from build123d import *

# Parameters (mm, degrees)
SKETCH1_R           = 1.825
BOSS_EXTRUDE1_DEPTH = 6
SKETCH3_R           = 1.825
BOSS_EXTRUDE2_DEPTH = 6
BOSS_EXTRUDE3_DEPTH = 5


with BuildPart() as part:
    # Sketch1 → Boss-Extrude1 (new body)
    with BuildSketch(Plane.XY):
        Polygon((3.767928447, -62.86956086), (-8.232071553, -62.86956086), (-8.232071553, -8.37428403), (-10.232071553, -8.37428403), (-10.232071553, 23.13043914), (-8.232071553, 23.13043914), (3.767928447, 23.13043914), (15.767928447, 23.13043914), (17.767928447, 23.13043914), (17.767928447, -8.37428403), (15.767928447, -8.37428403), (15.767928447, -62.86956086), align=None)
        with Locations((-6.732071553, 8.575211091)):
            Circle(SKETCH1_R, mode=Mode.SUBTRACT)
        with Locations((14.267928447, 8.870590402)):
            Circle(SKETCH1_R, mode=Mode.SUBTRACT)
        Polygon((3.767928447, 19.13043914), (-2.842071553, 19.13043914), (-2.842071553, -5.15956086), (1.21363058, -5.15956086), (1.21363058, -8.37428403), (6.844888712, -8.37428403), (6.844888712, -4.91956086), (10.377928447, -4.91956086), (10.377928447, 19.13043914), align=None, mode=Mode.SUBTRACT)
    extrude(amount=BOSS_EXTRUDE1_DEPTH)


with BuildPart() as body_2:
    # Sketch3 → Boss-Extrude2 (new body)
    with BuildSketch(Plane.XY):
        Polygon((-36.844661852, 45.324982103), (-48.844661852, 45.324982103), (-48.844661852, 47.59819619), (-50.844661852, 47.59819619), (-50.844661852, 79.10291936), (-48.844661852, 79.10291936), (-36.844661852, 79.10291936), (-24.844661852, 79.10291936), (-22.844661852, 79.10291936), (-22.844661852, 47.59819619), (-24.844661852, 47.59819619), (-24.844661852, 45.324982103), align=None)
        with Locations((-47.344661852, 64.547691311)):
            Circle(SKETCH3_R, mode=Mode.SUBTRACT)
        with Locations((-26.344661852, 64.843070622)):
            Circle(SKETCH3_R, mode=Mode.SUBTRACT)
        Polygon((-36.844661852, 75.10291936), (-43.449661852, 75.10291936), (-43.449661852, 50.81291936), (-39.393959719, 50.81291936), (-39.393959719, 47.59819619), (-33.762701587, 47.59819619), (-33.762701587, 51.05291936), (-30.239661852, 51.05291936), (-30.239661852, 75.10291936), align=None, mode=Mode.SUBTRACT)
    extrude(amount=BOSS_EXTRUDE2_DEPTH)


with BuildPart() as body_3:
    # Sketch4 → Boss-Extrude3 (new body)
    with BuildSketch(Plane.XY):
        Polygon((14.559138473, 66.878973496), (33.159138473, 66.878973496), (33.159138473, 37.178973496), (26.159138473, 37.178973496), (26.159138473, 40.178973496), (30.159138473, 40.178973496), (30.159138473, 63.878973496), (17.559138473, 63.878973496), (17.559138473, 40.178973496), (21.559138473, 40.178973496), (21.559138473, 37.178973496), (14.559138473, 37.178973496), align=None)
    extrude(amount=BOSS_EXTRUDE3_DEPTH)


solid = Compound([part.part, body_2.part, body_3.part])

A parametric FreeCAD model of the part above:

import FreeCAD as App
import Part
import Sketcher

V = App.Vector
Q = App.Units.Quantity


def add_polygon(sketch, points):
    """Adds a closed chain of lines whose ends are joined by coincident constraints."""
    first, n = sketch.GeometryCount, len(points)
    for a, b in zip(points, points[1:] + points[:1]):
        sketch.addGeometry(Part.LineSegment(App.Vector(*a, 0), App.Vector(*b, 0)), False)
    for i in range(n):
        sketch.addConstraint(Sketcher.Constraint("Coincident", first + i, 2, first + (i + 1) % n, 1))

doc = App.newDocument("Part")
params = doc.addObject("Spreadsheet::Sheet", "Params")
for row, (alias, value) in enumerate([
    ("sketch1_diameter", "3.65 mm"),
    ("sketch1_width", "24 mm"),
    ("sketch1_width2", "2 mm"),
    ("sketch1_width3", "13.22 mm"),
    ("sketch1_height", "24.05 mm"),
    ("pad1_length", "6 mm"),
    ("sketch2_diameter", "3.65 mm"),
    ("sketch2_width", "24 mm"),
    ("sketch2_width2", "2 mm"),
    ("sketch2_width3", "13.21 mm"),
    ("sketch2_height", "24.05 mm"),
    ("pad2_length", "6 mm"),
    ("sketch3_width", "7 mm"),
    ("sketch3_width2", "4 mm"),
    ("sketch3_height", "3 mm"),
    ("sketch3_width3", "18.6 mm"),
    ("sketch3_height2", "29.7 mm"),
    ("pad3_length", "5 mm"),
], start=1):
    params.set(f"A{row}", alias)
    params.set(f"B{row}", "=" + value)
    params.setAlias(f"B{row}", alias)

body = doc.addObject("PartDesign::Body", "Body")

# Sketch on XY plane
sketch1 = body.newObject("Sketcher::SketchObject", "Sketch")
sketch1.AttachmentSupport = (doc.getObject("XY_Plane"), [""])
sketch1.MapMode = "FlatFace"
add_polygon(sketch1, [(-8.2, -62.9), (15.8, -62.9), (15.8, -8.4), (17.8, -8.4), (17.8, 23.1), (-10.2, 23.1), (-10.2, -8.4), (-8.2, -8.4)])  # lines 0-7
add_polygon(sketch1, [(10.4, 19.1), (10.4, -4.9), (6.8, -4.9), (6.8, -8.4), (1.2, -8.4), (1.2, -5.2), (-2.8, -5.2), (-2.8, 19.1)])  # lines 8-15
sketch1.addGeometry(Part.Circle(V(14.3, 8.9, 0), V(0, 0, 1), 1.8), False)  # 16
sketch1.addGeometry(Part.Circle(V(-6.7, 8.6, 0), V(0, 0, 1), 1.8), False)  # 17
sketch1.addConstraint(Sketcher.Constraint("Horizontal", 0))
sketch1.addConstraint(Sketcher.Constraint("Vertical", 1))
sketch1.addConstraint(Sketcher.Constraint("Horizontal", 2))
sketch1.addConstraint(Sketcher.Constraint("Vertical", 3))
sketch1.addConstraint(Sketcher.Constraint("Horizontal", 4))
sketch1.addConstraint(Sketcher.Constraint("Vertical", 5))
sketch1.addConstraint(Sketcher.Constraint("Horizontal", 6))
sketch1.addConstraint(Sketcher.Constraint("Vertical", 7))
sketch1.addConstraint(Sketcher.Constraint("Vertical", 8))
sketch1.addConstraint(Sketcher.Constraint("Horizontal", 9))
sketch1.addConstraint(Sketcher.Constraint("Vertical", 10))
sketch1.addConstraint(Sketcher.Constraint("Horizontal", 11))
sketch1.addConstraint(Sketcher.Constraint("Vertical", 12))
sketch1.addConstraint(Sketcher.Constraint("Horizontal", 13))
sketch1.addConstraint(Sketcher.Constraint("Vertical", 14))
sketch1.addConstraint(Sketcher.Constraint("Horizontal", 15))
sketch1.addConstraint(Sketcher.Constraint("Equal", 16, 17))
sketch1.addConstraint(Sketcher.Constraint("Horizontal", 2, 2, 5, 2))
sketch1.addConstraint(Sketcher.Constraint("Horizontal", 6, 2, 10, 2))
sketch1.addConstraint(Sketcher.Constraint("Equal", 2, 6))
sketch1.addConstraint(Sketcher.Constraint("Diameter", 16, Q("3.65 mm")))
sketch1.addConstraint(Sketcher.Constraint("DistanceX", 0, 1, 0, 2, Q("24 mm")))
sketch1.addConstraint(Sketcher.Constraint("DistanceX", 2, 1, 2, 2, Q("2 mm")))
sketch1.addConstraint(Sketcher.Constraint("DistanceX", 17, 3, 16, 3, Q("21 mm")))
sketch1.addConstraint(Sketcher.Constraint("DistanceY", 0, 2, 3, 2, Q("86 mm")))
sketch1.addConstraint(Sketcher.Constraint("DistanceY", 14, 2, 4, 2, Q("4 mm")))
sketch1.addConstraint(Sketcher.Constraint("DistanceX", 15, 1, 15, 2, Q("13.22 mm")))
sketch1.addConstraint(Sketcher.Constraint("DistanceY", 8, 2, 8, 1, Q("24.05 mm")))
sketch1.addConstraint(Sketcher.Constraint("DistanceY", 14, 1, 14, 2, Q("24.29 mm")))
sketch1.addConstraint(Sketcher.Constraint("DistanceX", 16, 3, 0, 2, Q("1.5 mm")))
sketch1.addConstraint(Sketcher.Constraint("DistanceX", 8, 2, 1, 2, Q("5.39 mm")))
sketch1.addConstraint(Sketcher.Constraint("DistanceX", 9, 2, 9, 1, Q("3.53304 mm")))
sketch1.addConstraint(Sketcher.Constraint("DistanceX", 11, 2, 11, 1, Q("5.631258 mm")))
sketch1.addConstraint(Sketcher.Constraint("DistanceY", 1, 1, 1, 2, Q("54.495277 mm")))
sketch1.addConstraint(Sketcher.Constraint("DistanceX", -1, 1, 16, 3, Q("14.267928 mm")))
sketch1.addConstraint(Sketcher.Constraint("DistanceY", -1, 1, 16, 3, Q("8.87059 mm")))
sketch1.addConstraint(Sketcher.Constraint("DistanceY", -1, 1, 17, 3, Q("8.575211 mm")))
sketch1.addConstraint(Sketcher.Constraint("DistanceY", 0, 2, -1, 1, Q("62.869561 mm")))
sketch1.setExpression("Constraints[36]", "Params.sketch1_diameter")
sketch1.setExpression("Constraints[37]", "Params.sketch1_width")
sketch1.setExpression("Constraints[38]", "Params.sketch1_width2")
sketch1.setExpression("Constraints[42]", "Params.sketch1_width3")
sketch1.setExpression("Constraints[43]", "Params.sketch1_height")
pad1 = body.newObject("PartDesign::Pad", "Pad")
pad1.Profile = sketch1
pad1.setExpression("Length", "Params.pad1_length")
body2 = doc.addObject("PartDesign::Body", "Body001")

# Sketch on XY plane
sketch2 = body2.newObject("Sketcher::SketchObject", "Sketch001")
sketch2.AttachmentSupport = (doc.getObject("XY_Plane001"), [""])
sketch2.MapMode = "FlatFace"
add_polygon(sketch2, [(-48.8, 45.3), (-24.8, 45.3), (-24.8, 47.6), (-22.8, 47.6), (-22.8, 79.1), (-50.8, 79.1), (-50.8, 47.6), (-48.8, 47.6)])  # lines 0-7
add_polygon(sketch2, [(-30.2, 75.1), (-30.2, 51.1), (-33.8, 51.1), (-33.8, 47.6), (-39.4, 47.6), (-39.4, 50.8), (-43.4, 50.8), (-43.4, 75.1)])  # lines 8-15
sketch2.addGeometry(Part.Circle(V(-26.3, 64.8, 0), V(0, 0, 1), 1.8), False)  # 16
sketch2.addGeometry(Part.Circle(V(-47.3, 64.5, 0), V(0, 0, 1), 1.8), False)  # 17
sketch2.addConstraint(Sketcher.Constraint("Horizontal", 0))
sketch2.addConstraint(Sketcher.Constraint("Vertical", 1))
sketch2.addConstraint(Sketcher.Constraint("Horizontal", 2))
sketch2.addConstraint(Sketcher.Constraint("Vertical", 3))
sketch2.addConstraint(Sketcher.Constraint("Horizontal", 4))
sketch2.addConstraint(Sketcher.Constraint("Vertical", 5))
sketch2.addConstraint(Sketcher.Constraint("Horizontal", 6))
sketch2.addConstraint(Sketcher.Constraint("Vertical", 7))
sketch2.addConstraint(Sketcher.Constraint("Vertical", 8))
sketch2.addConstraint(Sketcher.Constraint("Horizontal", 9))
sketch2.addConstraint(Sketcher.Constraint("Vertical", 10))
sketch2.addConstraint(Sketcher.Constraint("Horizontal", 11))
sketch2.addConstraint(Sketcher.Constraint("Vertical", 12))
sketch2.addConstraint(Sketcher.Constraint("Horizontal", 13))
sketch2.addConstraint(Sketcher.Constraint("Vertical", 14))
sketch2.addConstraint(Sketcher.Constraint("Horizontal", 15))
sketch2.addConstraint(Sketcher.Constraint("Equal", 16, 17))
sketch2.addConstraint(Sketcher.Constraint("Horizontal", 2, 2, 5, 2))
sketch2.addConstraint(Sketcher.Constraint("Horizontal", 6, 2, 10, 2))
sketch2.addConstraint(Sketcher.Constraint("Equal", 2, 6))
sketch2.addConstraint(Sketcher.Constraint("Diameter", 16, Q("3.65 mm")))
sketch2.addConstraint(Sketcher.Constraint("DistanceX", 0, 1, 0, 2, Q("24 mm")))
sketch2.addConstraint(Sketcher.Constraint("DistanceX", 2, 1, 2, 2, Q("2 mm")))
sketch2.addConstraint(Sketcher.Constraint("DistanceX", 17, 3, 16, 3, Q("21 mm")))
sketch2.addConstraint(Sketcher.Constraint("DistanceY", 14, 2, 4, 2, Q("4 mm")))
sketch2.addConstraint(Sketcher.Constraint("DistanceX", 15, 1, 15, 2, Q("13.21 mm")))
sketch2.addConstraint(Sketcher.Constraint("DistanceY", 8, 2, 8, 1, Q("24.05 mm")))
sketch2.addConstraint(Sketcher.Constraint("DistanceY", 14, 1, 14, 2, Q("24.29 mm")))
sketch2.addConstraint(Sketcher.Constraint("DistanceX", 16, 3, 0, 2, Q("1.5 mm")))
sketch2.addConstraint(Sketcher.Constraint("DistanceX", 8, 2, 1, 2, Q("5.395 mm")))
sketch2.addConstraint(Sketcher.Constraint("DistanceX", 9, 2, 9, 1, Q("3.52304 mm")))
sketch2.addConstraint(Sketcher.Constraint("DistanceX", 11, 2, 11, 1, Q("5.631258 mm")))
sketch2.addConstraint(Sketcher.Constraint("DistanceX", 9, 2, -1, 1, Q("33.762702 mm")))
sketch2.addConstraint(Sketcher.Constraint("DistanceY", 1, 1, 1, 2, Q("2.273214 mm")))
sketch2.addConstraint(Sketcher.Constraint("DistanceY", 3, 1, 3, 2, Q("31.504723 mm")))
sketch2.addConstraint(Sketcher.Constraint("DistanceY", -1, 1, 16, 3, Q("64.843071 mm")))
sketch2.addConstraint(Sketcher.Constraint("DistanceY", -1, 1, 17, 3, Q("64.547691 mm")))
sketch2.addConstraint(Sketcher.Constraint("DistanceY", -1, 1, 3, 2, Q("79.102919 mm")))
sketch2.setExpression("Constraints[36]", "Params.sketch2_diameter")
sketch2.setExpression("Constraints[37]", "Params.sketch2_width")
sketch2.setExpression("Constraints[38]", "Params.sketch2_width2")
sketch2.setExpression("Constraints[41]", "Params.sketch2_width3")
sketch2.setExpression("Constraints[42]", "Params.sketch2_height")
pad2 = body2.newObject("PartDesign::Pad", "Pad001")
pad2.Profile = sketch2
pad2.setExpression("Length", "Params.pad2_length")
body3 = doc.addObject("PartDesign::Body", "Body002")

# Sketch on XY plane
sketch3 = body3.newObject("Sketcher::SketchObject", "Sketch002")
sketch3.AttachmentSupport = (doc.getObject("XY_Plane002"), [""])
sketch3.MapMode = "FlatFace"
add_polygon(sketch3, [(33.2, 66.9), (14.6, 66.9), (14.6, 37.2), (21.6, 37.2), (21.6, 40.2), (17.6, 40.2), (17.6, 63.9), (30.2, 63.9), (30.2, 40.2), (26.2, 40.2), (26.2, 37.2), (33.2, 37.2)])  # lines 0-11
sketch3.addConstraint(Sketcher.Constraint("Horizontal", 0))
sketch3.addConstraint(Sketcher.Constraint("Vertical", 1))
sketch3.addConstraint(Sketcher.Constraint("Horizontal", 2))
sketch3.addConstraint(Sketcher.Constraint("Vertical", 3))
sketch3.addConstraint(Sketcher.Constraint("Horizontal", 4))
sketch3.addConstraint(Sketcher.Constraint("Vertical", 5))
sketch3.addConstraint(Sketcher.Constraint("Horizontal", 6))
sketch3.addConstraint(Sketcher.Constraint("Vertical", 7))
sketch3.addConstraint(Sketcher.Constraint("Horizontal", 8))
sketch3.addConstraint(Sketcher.Constraint("Vertical", 9))
sketch3.addConstraint(Sketcher.Constraint("Horizontal", 10))
sketch3.addConstraint(Sketcher.Constraint("Vertical", 11))
sketch3.addConstraint(Sketcher.Constraint("Horizontal", 4, 2, 7, 2))
sketch3.addConstraint(Sketcher.Constraint("Horizontal", 2, 2, 9, 2))
sketch3.addConstraint(Sketcher.Constraint("Equal", 4, 8))
sketch3.addConstraint(Sketcher.Constraint("Equal", 2, 10))
sketch3.addConstraint(Sketcher.Constraint("DistanceX", 2, 1, 2, 2, Q("7 mm")))
sketch3.addConstraint(Sketcher.Constraint("DistanceX", 4, 2, 4, 1, Q("4 mm")))
sketch3.addConstraint(Sketcher.Constraint("DistanceY", 3, 1, 3, 2, Q("3 mm")))
sketch3.addConstraint(Sketcher.Constraint("DistanceX", 0, 2, 0, 1, Q("18.6 mm")))
sketch3.addConstraint(Sketcher.Constraint("DistanceY", 1, 2, 1, 1, Q("29.7 mm")))
sketch3.addConstraint(Sketcher.Constraint("DistanceY", 5, 1, 5, 2, Q("23.7 mm")))
sketch3.addConstraint(Sketcher.Constraint("DistanceX", -1, 1, 0, 2, Q("14.559138 mm")))
sketch3.addConstraint(Sketcher.Constraint("DistanceY", -1, 1, 0, 2, Q("66.878973 mm")))
sketch3.setExpression("Constraints[28]", "Params.sketch3_width")
sketch3.setExpression("Constraints[29]", "Params.sketch3_width2")
sketch3.setExpression("Constraints[30]", "Params.sketch3_height")
sketch3.setExpression("Constraints[31]", "Params.sketch3_width3")
sketch3.setExpression("Constraints[32]", "Params.sketch3_height2")
pad3 = body3.newObject("PartDesign::Pad", "Pad002")
pad3.Profile = sketch3
pad3.setExpression("Length", "Params.pad3_length")

doc.recompute()
